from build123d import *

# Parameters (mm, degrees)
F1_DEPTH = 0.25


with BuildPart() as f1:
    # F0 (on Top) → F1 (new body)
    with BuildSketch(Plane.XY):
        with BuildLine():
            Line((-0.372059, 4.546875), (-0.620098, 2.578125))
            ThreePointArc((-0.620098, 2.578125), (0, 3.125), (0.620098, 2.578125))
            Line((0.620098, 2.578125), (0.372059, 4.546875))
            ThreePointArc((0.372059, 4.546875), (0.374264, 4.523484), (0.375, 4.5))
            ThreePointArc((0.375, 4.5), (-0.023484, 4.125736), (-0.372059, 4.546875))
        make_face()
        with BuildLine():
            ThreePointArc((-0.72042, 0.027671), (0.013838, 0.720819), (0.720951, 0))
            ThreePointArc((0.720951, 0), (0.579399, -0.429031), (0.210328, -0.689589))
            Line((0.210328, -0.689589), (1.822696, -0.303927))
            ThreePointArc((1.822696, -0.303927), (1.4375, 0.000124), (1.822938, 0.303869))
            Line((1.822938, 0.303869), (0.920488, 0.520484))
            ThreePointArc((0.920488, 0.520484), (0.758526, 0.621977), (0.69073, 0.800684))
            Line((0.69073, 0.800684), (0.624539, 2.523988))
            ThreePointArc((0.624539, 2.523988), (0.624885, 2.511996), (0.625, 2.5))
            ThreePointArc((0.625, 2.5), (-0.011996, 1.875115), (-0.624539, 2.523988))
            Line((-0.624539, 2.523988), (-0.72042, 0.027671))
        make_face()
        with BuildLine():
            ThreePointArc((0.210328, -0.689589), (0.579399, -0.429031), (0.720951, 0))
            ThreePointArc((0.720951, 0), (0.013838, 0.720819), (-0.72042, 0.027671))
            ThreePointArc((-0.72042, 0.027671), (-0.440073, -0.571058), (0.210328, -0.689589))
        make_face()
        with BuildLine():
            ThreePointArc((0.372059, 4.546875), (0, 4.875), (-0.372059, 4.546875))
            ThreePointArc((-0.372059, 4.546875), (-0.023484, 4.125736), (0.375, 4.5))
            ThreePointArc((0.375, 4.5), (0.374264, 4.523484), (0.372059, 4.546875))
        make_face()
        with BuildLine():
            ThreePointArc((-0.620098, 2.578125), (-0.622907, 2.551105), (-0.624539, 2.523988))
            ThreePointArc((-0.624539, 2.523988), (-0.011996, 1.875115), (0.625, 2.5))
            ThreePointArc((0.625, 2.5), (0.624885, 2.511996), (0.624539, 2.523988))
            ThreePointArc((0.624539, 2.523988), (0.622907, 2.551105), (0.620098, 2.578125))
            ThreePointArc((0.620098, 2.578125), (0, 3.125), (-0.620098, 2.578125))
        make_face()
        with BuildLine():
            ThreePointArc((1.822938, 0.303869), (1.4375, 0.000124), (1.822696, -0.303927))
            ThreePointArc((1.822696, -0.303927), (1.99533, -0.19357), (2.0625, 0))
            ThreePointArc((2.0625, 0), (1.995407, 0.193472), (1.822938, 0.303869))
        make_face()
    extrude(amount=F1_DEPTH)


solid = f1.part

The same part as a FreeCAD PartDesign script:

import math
import FreeCAD as App
import Part
import Sketcher

V = App.Vector

doc = App.newDocument("Part")
body = doc.addObject("PartDesign::Body", "Body")

# Sketch on XY plane
sketch1 = body.newObject("Sketcher::SketchObject", "Sketch")
sketch1.AttachmentSupport = (doc.getObject("XY_Plane"), [""])
sketch1.MapMode = "FlatFace"
sketch1.addGeometry([
    Part.LineSegment(V(-0.372059, 4.546875, 0), V(-0.620098, 2.578125, 0)),  # 0
    Part.ArcOfCircle(Part.Circle(V(-0.000114, 2.500015, 0), V(0, 0, 1), 0.624885), math.radians(172.819342), math.radians(177.801413)),  # 1
    Part.LineSegment(V(-0.624539, 2.523988, 0), V(-0.72042, 0.027671, 0)),  # 2
    Part.ArcOfCircle(Part.Circle(V(-0.000001, -0.000001, 0), V(0, 0, 1), 0.720951), math.radians(177.800295), math.radians(286.962035)),  # 3
    Part.LineSegment(V(0.210328, -0.689589, 0), V(1.822696, -0.303927, 0)),  # 4
    Part.ArcOfCircle(Part.Circle(V(1.749999, 0.000001, 0), V(0, 0, 1), 0.312501), math.radians(-76.54808), math.radians(-0.0001)),  # 5
    Part.ArcOfCircle(Part.Circle(V(1.749998, -0.000001, 0), V(0, 0, 1), 0.312502), math.radians(0.000219), math.radians(76.502338)),  # 6
    Part.LineSegment(V(1.822938, 0.303869, 0), V(0.920488, 0.520484, 0)),  # 7
    Part.ArcOfCircle(Part.Circle(V(0.990508, 0.812197, 0), V(0, 0, 1), 0.299999), math.radians(-177.800568), math.radians(-103.497394)),  # 8
    Part.LineSegment(V(0.69073, 0.800684, 0), V(0.624539, 2.523988, 0)),  # 9
    Part.ArcOfCircle(Part.Circle(V(0.000114, 2.500015, 0), V(0, 0, 1), 0.624885), math.radians(2.198587), math.radians(7.180658)),  # 10
    Part.LineSegment(V(0.620098, 2.578125, 0), V(0.372059, 4.546875, 0)),  # 11
    Part.ArcOfCircle(Part.Circle(V(0, 4.5, 0), V(0, 0, 1), 0.375), math.radians(7.18079), math.radians(172.81921)),  # 12
], False)
sketch1.addConstraint([
    Sketcher.Constraint("Tangent", 0, 2, 1, 1),
    Sketcher.Constraint("Coincident", 1, 2, 2, 1),
    Sketcher.Constraint("Tangent", 2, 2, 3, 1),
    Sketcher.Constraint("Coincident", 3, 2, 4, 1),
    Sketcher.Constraint("Tangent", 4, 2, 5, 1),
    Sketcher.Constraint("Coincident", 5, 2, 6, 1),
    Sketcher.Constraint("Coincident", 6, 2, 7, 1),
    Sketcher.Constraint("Tangent", 7, 2, 8, 2),
    Sketcher.Constraint("Coincident", 8, 1, 9, 1),
    Sketcher.Constraint("Coincident", 9, 2, 10, 1),
    Sketcher.Constraint("Tangent", 10, 2, 11, 1),
    Sketcher.Constraint("Tangent", 11, 2, 12, 1),
    Sketcher.Constraint("Tangent", 12, 2, 0, 1),
    Sketcher.Constraint("Coincident", 3, 3, -1, 1),
    Sketcher.Constraint("Coincident", 6, 3, 5, 3),
    Sketcher.Constraint("Equal", 1, 10),
    Sketcher.Constraint("Symmetric", 1, 3, 10, 3, -2),
    Sketcher.Constraint("PointOnObject", 5, 3, -1),
    Sketcher.Constraint("PointOnObject", 12, 3, -2),
    Sketcher.Constraint("PointOnObject", 5, 2, -1),
    Sketcher.Constraint("Horizontal", 1, 2, 9, 2),
    Sketcher.Constraint("Radius", 8, 0.299999),
    Sketcher.Constraint("Radius", 12, 0.375),
    Sketcher.Constraint("DistanceY", -1, 1, 12, 3, 4.5),
    Sketcher.Constraint("Radius", 5, 0.312501),
    Sketcher.Constraint("DistanceX", -1, 1, 5, 3, 1.749999),
    Sketcher.Constraint("Radius", 3, 0.720951),
    Sketcher.Constraint("Radius", 1, 0.624885),
    Sketcher.Constraint("DistanceX", 0, 2, -1, 1, 0.620098),
    Sketcher.Constraint("DistanceY", 6, 3, 8, 3, 0.812199),
    Sketcher.Constraint("DistanceY", 7, 2, 8, 1, 0.2802),
    Sketcher.Constraint("Distance", 4, 1.65785),
    Sketcher.Constraint("DistanceX", -1, 1, 8, 3, 0.990508),
    Sketcher.Constraint("DistanceX", 1, 2, -1, 1, 0.624539),
    Sketcher.Constraint("DistanceY", -1, 1, 1, 2, 2.523988),
    Sketcher.Constraint("DistanceX", -1, 1, 6, 2, 1.822938),
])
pad1 = body.newObject("PartDesign::Pad", "Pad")
pad1.Profile = sketch1
pad1.Length = 0.25

doc.recompute()
